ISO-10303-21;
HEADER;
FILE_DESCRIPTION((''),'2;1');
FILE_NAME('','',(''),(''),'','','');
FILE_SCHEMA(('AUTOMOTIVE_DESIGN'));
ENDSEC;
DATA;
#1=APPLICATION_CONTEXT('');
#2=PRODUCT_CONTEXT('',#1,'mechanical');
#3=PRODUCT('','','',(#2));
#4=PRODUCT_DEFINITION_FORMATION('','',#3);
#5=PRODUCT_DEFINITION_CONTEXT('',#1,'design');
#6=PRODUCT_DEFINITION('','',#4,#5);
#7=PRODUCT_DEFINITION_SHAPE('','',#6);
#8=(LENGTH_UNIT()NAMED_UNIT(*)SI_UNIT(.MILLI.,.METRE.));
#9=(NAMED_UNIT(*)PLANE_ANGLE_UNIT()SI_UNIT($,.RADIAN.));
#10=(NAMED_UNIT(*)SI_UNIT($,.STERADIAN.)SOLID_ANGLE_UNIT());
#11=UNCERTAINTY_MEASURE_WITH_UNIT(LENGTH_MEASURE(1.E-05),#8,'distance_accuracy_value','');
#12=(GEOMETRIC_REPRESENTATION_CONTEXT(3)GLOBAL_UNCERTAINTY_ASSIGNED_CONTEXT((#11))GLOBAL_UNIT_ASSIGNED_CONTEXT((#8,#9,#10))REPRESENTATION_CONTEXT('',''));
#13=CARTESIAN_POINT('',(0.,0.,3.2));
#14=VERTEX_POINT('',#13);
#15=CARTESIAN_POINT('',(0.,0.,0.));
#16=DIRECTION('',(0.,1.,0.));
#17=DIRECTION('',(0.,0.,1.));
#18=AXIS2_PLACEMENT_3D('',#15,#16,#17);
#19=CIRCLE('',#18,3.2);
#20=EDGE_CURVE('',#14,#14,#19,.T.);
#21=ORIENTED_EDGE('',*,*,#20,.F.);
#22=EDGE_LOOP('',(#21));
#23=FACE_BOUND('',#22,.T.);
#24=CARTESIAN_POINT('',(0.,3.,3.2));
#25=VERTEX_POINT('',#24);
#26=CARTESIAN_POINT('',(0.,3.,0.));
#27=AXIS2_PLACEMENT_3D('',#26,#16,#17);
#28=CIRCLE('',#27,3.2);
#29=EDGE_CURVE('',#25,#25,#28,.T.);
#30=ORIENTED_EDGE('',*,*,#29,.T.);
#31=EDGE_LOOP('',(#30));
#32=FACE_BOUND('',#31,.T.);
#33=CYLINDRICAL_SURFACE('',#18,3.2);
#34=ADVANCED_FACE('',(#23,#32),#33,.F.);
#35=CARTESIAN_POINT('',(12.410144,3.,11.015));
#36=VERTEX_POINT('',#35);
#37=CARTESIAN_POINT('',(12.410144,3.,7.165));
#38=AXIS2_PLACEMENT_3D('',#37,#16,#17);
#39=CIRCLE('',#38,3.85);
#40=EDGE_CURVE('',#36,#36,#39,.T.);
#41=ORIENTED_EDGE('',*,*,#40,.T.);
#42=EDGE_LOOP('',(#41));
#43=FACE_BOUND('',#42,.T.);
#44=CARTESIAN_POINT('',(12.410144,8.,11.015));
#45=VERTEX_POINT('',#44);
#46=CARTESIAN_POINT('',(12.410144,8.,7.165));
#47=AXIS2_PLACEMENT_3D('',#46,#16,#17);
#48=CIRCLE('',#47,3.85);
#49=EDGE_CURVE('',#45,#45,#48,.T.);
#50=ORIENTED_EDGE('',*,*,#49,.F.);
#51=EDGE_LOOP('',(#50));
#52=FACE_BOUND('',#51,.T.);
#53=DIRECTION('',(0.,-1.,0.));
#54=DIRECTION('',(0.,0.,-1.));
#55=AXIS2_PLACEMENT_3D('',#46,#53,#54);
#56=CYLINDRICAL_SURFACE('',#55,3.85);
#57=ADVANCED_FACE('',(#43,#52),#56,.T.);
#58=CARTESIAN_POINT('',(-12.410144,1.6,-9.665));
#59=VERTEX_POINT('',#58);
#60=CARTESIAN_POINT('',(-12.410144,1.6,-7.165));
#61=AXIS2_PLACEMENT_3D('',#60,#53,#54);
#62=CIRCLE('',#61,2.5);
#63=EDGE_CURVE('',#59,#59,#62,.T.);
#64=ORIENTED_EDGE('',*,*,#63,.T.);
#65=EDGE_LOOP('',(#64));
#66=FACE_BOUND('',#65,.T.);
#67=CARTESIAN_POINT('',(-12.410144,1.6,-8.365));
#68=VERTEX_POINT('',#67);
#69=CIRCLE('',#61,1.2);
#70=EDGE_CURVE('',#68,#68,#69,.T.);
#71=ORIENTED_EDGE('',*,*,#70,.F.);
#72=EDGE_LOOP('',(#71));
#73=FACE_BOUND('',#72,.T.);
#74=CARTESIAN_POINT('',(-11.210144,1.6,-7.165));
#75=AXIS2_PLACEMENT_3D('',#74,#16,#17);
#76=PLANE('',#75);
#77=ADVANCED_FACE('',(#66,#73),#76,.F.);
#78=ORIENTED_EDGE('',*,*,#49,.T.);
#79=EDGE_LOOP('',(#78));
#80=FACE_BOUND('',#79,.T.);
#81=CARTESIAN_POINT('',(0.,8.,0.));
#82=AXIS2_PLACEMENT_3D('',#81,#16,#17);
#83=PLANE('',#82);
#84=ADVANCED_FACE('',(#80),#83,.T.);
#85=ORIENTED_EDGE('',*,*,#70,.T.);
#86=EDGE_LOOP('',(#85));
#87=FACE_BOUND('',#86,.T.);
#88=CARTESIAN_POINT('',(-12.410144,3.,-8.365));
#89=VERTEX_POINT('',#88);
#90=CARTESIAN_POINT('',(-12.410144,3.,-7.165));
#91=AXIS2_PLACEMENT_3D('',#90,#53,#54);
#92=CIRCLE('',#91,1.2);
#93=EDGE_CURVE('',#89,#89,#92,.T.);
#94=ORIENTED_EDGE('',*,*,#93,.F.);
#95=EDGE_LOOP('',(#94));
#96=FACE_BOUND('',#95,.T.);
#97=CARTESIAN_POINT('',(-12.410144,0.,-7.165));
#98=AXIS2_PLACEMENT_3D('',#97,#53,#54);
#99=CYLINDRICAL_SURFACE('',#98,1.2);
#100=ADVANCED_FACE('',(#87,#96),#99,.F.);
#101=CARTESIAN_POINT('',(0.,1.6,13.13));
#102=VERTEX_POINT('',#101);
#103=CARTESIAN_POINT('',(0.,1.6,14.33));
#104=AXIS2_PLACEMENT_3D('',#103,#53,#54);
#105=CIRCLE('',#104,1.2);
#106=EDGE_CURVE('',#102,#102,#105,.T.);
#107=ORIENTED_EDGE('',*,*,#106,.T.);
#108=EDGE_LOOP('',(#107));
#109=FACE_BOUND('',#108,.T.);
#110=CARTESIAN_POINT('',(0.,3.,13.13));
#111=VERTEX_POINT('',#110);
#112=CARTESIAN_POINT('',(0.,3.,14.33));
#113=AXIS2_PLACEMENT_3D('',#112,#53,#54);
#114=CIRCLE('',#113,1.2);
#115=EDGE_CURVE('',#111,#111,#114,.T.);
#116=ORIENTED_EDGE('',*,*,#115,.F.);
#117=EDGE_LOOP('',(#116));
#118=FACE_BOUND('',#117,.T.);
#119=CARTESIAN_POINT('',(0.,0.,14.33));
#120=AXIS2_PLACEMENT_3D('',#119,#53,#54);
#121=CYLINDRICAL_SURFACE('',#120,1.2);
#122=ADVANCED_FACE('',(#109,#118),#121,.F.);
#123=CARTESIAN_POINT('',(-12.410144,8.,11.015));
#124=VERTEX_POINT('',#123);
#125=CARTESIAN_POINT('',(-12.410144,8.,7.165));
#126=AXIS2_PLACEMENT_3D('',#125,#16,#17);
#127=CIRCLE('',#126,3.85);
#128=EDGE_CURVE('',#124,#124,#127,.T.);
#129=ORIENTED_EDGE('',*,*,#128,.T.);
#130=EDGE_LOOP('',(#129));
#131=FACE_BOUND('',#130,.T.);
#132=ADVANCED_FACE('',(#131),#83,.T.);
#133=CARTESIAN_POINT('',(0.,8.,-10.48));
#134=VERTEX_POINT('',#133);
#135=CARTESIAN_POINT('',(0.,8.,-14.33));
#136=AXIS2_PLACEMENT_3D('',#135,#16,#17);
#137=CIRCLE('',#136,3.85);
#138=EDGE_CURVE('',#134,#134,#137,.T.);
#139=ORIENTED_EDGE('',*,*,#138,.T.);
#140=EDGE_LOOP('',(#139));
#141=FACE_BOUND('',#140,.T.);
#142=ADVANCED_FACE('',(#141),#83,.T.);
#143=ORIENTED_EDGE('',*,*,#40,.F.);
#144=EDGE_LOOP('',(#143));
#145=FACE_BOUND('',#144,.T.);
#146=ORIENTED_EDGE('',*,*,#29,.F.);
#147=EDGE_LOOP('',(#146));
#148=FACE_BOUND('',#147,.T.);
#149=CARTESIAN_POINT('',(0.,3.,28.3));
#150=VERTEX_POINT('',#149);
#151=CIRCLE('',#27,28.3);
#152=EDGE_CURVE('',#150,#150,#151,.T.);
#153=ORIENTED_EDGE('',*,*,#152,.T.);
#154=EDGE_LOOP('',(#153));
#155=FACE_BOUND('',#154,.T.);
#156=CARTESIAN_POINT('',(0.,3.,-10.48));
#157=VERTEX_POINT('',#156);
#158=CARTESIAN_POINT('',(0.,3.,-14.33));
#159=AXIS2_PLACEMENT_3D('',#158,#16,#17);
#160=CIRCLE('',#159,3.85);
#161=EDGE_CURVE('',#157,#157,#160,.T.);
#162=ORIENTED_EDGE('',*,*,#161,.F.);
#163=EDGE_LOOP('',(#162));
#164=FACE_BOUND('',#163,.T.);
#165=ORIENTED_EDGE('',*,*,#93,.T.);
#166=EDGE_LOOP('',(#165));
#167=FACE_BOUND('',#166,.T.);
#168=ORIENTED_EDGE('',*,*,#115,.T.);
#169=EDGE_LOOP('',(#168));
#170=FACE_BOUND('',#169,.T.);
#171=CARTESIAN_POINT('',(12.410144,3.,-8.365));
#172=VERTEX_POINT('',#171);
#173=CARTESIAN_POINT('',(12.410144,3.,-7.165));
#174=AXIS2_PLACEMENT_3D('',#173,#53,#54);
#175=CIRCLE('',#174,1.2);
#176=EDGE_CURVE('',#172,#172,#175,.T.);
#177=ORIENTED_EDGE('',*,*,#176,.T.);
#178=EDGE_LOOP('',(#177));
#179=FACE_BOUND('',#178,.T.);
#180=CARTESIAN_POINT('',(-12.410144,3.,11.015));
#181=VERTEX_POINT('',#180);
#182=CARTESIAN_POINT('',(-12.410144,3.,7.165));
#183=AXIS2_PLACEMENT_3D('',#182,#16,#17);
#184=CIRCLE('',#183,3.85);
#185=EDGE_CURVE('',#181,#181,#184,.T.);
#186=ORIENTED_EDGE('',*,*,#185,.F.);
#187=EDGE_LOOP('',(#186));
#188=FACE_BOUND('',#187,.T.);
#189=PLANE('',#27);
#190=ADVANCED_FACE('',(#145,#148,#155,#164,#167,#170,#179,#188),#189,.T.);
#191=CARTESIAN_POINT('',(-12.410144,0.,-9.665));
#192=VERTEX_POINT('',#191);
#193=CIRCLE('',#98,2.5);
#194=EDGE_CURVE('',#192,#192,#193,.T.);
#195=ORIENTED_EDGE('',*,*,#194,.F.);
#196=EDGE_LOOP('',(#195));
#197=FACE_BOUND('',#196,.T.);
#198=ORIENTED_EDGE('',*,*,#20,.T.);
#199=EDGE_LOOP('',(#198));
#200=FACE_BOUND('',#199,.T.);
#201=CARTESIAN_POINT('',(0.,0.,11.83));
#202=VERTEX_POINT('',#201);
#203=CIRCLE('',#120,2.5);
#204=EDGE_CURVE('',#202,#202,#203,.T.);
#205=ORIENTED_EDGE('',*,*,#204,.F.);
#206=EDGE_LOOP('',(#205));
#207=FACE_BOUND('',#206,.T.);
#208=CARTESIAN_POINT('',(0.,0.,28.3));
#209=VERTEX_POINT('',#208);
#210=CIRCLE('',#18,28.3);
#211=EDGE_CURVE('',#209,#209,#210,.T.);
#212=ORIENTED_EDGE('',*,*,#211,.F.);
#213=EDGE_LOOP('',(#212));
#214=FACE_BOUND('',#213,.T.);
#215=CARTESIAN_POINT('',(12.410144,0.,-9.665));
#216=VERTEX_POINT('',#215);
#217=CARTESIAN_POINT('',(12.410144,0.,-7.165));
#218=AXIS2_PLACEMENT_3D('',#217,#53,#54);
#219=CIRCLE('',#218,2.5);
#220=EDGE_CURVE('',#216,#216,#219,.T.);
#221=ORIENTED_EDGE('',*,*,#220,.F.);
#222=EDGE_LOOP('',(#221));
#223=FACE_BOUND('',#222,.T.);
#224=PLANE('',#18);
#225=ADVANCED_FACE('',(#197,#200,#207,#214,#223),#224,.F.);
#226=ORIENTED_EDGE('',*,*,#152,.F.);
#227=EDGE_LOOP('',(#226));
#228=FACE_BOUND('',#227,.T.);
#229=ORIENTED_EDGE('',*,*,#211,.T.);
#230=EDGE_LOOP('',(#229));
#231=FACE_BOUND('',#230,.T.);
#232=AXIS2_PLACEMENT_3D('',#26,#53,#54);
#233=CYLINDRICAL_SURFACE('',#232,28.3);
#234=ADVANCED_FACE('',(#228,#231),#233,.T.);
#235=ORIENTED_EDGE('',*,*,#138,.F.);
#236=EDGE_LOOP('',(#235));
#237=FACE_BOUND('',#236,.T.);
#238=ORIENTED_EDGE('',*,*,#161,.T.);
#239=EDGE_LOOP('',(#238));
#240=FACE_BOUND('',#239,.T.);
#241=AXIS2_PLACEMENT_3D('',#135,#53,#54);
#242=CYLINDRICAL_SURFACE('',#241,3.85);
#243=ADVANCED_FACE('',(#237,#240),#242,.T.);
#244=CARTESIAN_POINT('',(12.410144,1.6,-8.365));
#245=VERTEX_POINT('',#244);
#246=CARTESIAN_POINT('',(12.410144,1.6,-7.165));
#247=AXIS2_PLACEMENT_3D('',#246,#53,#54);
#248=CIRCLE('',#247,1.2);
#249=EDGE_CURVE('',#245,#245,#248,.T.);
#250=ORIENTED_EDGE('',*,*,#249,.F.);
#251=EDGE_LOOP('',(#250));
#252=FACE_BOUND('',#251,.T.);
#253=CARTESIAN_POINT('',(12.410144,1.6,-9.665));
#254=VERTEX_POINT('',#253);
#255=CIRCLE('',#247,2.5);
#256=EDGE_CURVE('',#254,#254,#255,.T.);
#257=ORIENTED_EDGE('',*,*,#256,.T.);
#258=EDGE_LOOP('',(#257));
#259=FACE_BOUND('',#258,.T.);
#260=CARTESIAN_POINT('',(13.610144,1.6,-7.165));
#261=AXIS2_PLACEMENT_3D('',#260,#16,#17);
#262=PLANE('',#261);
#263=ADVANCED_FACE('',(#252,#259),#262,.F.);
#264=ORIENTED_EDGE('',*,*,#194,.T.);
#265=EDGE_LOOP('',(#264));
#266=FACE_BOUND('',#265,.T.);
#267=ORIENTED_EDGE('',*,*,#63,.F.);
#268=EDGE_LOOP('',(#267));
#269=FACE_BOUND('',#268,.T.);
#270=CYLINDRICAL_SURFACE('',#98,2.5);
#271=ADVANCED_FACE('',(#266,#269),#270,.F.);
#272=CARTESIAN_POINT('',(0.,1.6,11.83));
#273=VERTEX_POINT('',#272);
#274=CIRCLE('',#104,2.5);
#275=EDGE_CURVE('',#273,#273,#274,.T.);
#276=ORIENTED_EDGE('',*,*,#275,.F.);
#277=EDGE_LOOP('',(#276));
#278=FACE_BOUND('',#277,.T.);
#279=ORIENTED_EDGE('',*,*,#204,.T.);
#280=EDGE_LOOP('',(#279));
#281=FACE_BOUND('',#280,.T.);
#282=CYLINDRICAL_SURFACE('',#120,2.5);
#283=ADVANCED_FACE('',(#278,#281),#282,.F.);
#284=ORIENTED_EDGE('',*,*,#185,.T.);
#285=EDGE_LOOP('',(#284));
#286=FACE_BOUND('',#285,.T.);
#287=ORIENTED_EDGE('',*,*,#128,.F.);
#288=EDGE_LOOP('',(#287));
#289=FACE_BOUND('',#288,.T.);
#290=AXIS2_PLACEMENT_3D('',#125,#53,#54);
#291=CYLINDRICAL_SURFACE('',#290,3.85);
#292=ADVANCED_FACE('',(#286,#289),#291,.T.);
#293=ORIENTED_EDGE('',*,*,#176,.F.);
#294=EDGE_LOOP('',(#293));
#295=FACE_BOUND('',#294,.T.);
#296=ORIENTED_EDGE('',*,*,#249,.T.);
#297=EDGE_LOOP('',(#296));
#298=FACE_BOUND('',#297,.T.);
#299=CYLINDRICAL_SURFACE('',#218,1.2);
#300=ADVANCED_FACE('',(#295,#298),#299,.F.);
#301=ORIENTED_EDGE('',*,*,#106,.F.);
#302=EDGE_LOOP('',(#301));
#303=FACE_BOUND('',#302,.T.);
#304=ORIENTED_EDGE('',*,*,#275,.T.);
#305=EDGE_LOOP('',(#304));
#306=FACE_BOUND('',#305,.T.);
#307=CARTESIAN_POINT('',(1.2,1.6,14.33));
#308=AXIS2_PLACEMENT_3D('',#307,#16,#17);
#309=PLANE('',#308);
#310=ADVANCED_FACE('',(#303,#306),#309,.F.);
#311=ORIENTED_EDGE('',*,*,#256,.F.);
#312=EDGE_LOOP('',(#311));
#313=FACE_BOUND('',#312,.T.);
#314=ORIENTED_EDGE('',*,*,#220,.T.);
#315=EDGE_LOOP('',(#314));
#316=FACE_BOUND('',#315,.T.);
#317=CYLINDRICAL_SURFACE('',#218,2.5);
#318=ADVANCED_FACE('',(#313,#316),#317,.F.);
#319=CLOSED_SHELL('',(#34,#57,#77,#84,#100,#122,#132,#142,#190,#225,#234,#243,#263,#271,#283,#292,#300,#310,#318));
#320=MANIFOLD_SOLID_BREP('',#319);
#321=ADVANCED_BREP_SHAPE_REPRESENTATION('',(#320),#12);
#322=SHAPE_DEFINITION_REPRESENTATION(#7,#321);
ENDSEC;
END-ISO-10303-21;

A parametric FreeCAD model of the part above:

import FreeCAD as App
import Part
import Sketcher
Q = App.Units.Quantity

doc = App.newDocument("Part")
params = doc.addObject("Spreadsheet::Sheet", "Params")
for row, (alias, value) in enumerate([
    ("sketch1_diameter", "7.7 mm"),
    ("pad1_length", "8 mm"),
    ("sketch2_diameter", "7.7 mm"),
    ("pad2_length", "8 mm"),
    ("sketch3_diameter", "7.7 mm"),
    ("pad3_length", "8 mm"),
    ("sketch4_diameter", "1 mm"),
    ("sketch4_diameter2", "56.6 mm"),
    ("pad4_length", "3 mm"),
    ("sketch5_diameter", "6.4 mm"),
    ("sketch6_diameter", "2.4 mm"),
    ("hole_diameter", "2.4 mm"),
    ("hole_depth", "3 mm"),
    ("hole_cbore_diameter", "5 mm"),
    ("hole_cbore_depth", "1.6 mm"),
], start=1):
    params.set(f"A{row}", alias)
    params.set(f"B{row}", "=" + value)
    params.setAlias(f"B{row}", alias)

body = doc.addObject("PartDesign::Body", "Body")

# Sketch on XZ plane
sketch1 = body.newObject("Sketcher::SketchObject", "Sketch")
sketch1.AttachmentSupport = (doc.getObject("XZ_Plane"), [""])
sketch1.MapMode = "FlatFace"
sketch1.addGeometry(Part.Circle(App.Vector(0, -14.3, 0), App.Vector(0, 0, 1), 3.9), False)
sketch1.addConstraint(Sketcher.Constraint("PointOnObject", 0, 3, -2))
sketch1.addConstraint(Sketcher.Constraint("Diameter", 0, Q("7.7 mm")))
sketch1.addConstraint(Sketcher.Constraint("DistanceY", 0, 3, -1, 1, Q("14.33 mm")))
sketch1.setExpression("Constraints[1]", "Params.sketch1_diameter")
pad1 = body.newObject("PartDesign::Pad", "Pad")
pad1.Profile = sketch1
pad1.setExpression("Length", "Params.pad1_length")
pad1.Reversed = True
body2 = doc.addObject("PartDesign::Body", "Body001")

# Sketch on XZ plane
sketch2 = body2.newObject("Sketcher::SketchObject", "Sketch001")
sketch2.AttachmentSupport = (doc.getObject("XZ_Plane001"), [""])
sketch2.MapMode = "FlatFace"
sketch2.addGeometry(Part.Circle(App.Vector(12.4, 7.2, 0), App.Vector(0, 0, 1), 3.9), False)
sketch2.addConstraint(Sketcher.Constraint("Diameter", 0, Q("7.7 mm")))
sketch2.addConstraint(Sketcher.Constraint("DistanceY", -1, 1, 0, 3, Q("7.165 mm")))
sketch2.addConstraint(Sketcher.Constraint("DistanceX", -1, 1, 0, 3, Q("12.410144 mm")))
sketch2.setExpression("Constraints[0]", "Params.sketch2_diameter")
pad2 = body2.newObject("PartDesign::Pad", "Pad001")
pad2.Profile = sketch2
pad2.setExpression("Length", "Params.pad2_length")
pad2.Reversed = True
body3 = doc.addObject("PartDesign::Body", "Body002")

# Sketch on XZ plane
sketch3 = body3.newObject("Sketcher::SketchObject", "Sketch002")
sketch3.AttachmentSupport = (doc.getObject("XZ_Plane002"), [""])
sketch3.MapMode = "FlatFace"
sketch3.addGeometry(Part.Circle(App.Vector(-12.4, 7.2, 0), App.Vector(0, 0, 1), 3.9), False)
sketch3.addConstraint(Sketcher.Constraint("Diameter", 0, Q("7.7 mm")))
sketch3.addConstraint(Sketcher.Constraint("DistanceY", -1, 1, 0, 3, Q("7.165 mm")))
sketch3.addConstraint(Sketcher.Constraint("DistanceX", 0, 3, -1, 1, Q("12.410144 mm")))
sketch3.setExpression("Constraints[0]", "Params.sketch3_diameter")
pad3 = body3.newObject("PartDesign::Pad", "Pad002")
pad3.Profile = sketch3
pad3.setExpression("Length", "Params.pad3_length")
pad3.Reversed = True
body.AllowCompound = True
doc.recompute()

boolean = body.newObject("PartDesign::Boolean", "Boolean")
boolean.Type = "Fuse"
boolean.addObjects([body2])
doc.recompute()

boolean2 = body.newObject("PartDesign::Boolean", "Boolean001")
boolean2.Type = "Fuse"
boolean2.addObjects([body3])

# Sketch on XZ plane
sketch4 = body.newObject("Sketcher::SketchObject", "Sketch003")
sketch4.AttachmentSupport = (doc.getObject("XZ_Plane"), [""])
sketch4.MapMode = "FlatFace"
sketch4.addGeometry(Part.Circle(App.Vector(0, 0, 0), App.Vector(0, 0, 1), 28.3), False)
sketch4.addGeometry(Part.Circle(App.Vector(-12.4, -7.2, 0), App.Vector(0, 0, 1), 0.5), False)
sketch4.addGeometry(Part.Circle(App.Vector(12.4, -7.2, 0), App.Vector(0, 0, 1), 0.5), False)
sketch4.addGeometry(Part.Circle(App.Vector(0, 14.3, 0), App.Vector(0, 0, 1), 0.5), False)
sketch4.addConstraint(Sketcher.Constraint("Coincident", 0, 3, -1, 1))
sketch4.addConstraint(Sketcher.Constraint("Equal", 1, 2))
sketch4.addConstraint(Sketcher.Constraint("Equal", 2, 3))
sketch4.addConstraint(Sketcher.Constraint("Symmetric", 1, 3, 2, 3, -2))
sketch4.addConstraint(Sketcher.Constraint("PointOnObject", 3, 3, -2))
sketch4.addConstraint(Sketcher.Constraint("Diameter", 1, Q("1 mm")))
sketch4.addConstraint(Sketcher.Constraint("Diameter", 0, Q("56.6 mm")))
sketch4.addConstraint(Sketcher.Constraint("DistanceY", -1, 1, 3, 3, Q("14.33 mm")))
sketch4.addConstraint(Sketcher.Constraint("DistanceY", 1, 3, -1, 1, Q("7.165 mm")))
sketch4.addConstraint(Sketcher.Constraint("DistanceX", 1, 3, 2, 3, Q("24.820288 mm")))
sketch4.setExpression("Constraints[5]", "Params.sketch4_diameter")
sketch4.setExpression("Constraints[6]", "Params.sketch4_diameter2")
pad4 = body.newObject("PartDesign::Pad", "Pad003")
pad4.Profile = sketch4
pad4.setExpression("Length", "Params.pad4_length")
pad4.Reversed = True

# Sketch on XZ plane
sketch5 = body.newObject("Sketcher::SketchObject", "Sketch004")
sketch5.AttachmentSupport = (doc.getObject("XZ_Plane"), [""])
sketch5.MapMode = "FlatFace"
sketch5.AttachmentOffset = App.Placement(App.Vector(0, 0, -3), App.Rotation())
sketch5.addGeometry(Part.Circle(App.Vector(0, 0, 0), App.Vector(0, 0, 1), 3.2), False)
sketch5.addConstraint(Sketcher.Constraint("Coincident", 0, 3, -1, 1))
sketch5.addConstraint(Sketcher.Constraint("Diameter", 0, Q("6.4 mm")))
sketch5.setExpression("Constraints[1]", "Params.sketch5_diameter")
pocket1 = body.newObject("PartDesign::Pocket", "Pocket")
pocket1.Profile = sketch5
pocket1.Type = "ThroughAll"
pocket1.Reversed = True

# Sketch on XZ plane
sketch6 = body.newObject("Sketcher::SketchObject", "Sketch005")
sketch6.AttachmentSupport = (doc.getObject("XZ_Plane"), [""])
sketch6.MapMode = "FlatFace"
sketch6.addGeometry(Part.Circle(App.Vector(0, 14.3, 0), App.Vector(0, 0, 1), 1.2), False)
sketch6.addGeometry(Part.Circle(App.Vector(-12.4, -7.2, 0), App.Vector(0, 0, 1), 1.2), False)
sketch6.addGeometry(Part.Circle(App.Vector(12.4, -7.2, 0), App.Vector(0, 0, 1), 1.2), False)
sketch6.addConstraint(Sketcher.Constraint("Equal", 0, 1))
sketch6.addConstraint(Sketcher.Constraint("Equal", 1, 2))
sketch6.addConstraint(Sketcher.Constraint("Symmetric", 1, 3, 2, 3, -2))
sketch6.addConstraint(Sketcher.Constraint("PointOnObject", 0, 3, -2))
sketch6.addConstraint(Sketcher.Constraint("Diameter", 0, Q("2.4 mm")))
sketch6.addConstraint(Sketcher.Constraint("DistanceY", -1, 1, 0, 3, Q("14.33 mm")))
sketch6.addConstraint(Sketcher.Constraint("DistanceY", 1, 3, -1, 1, Q("7.165 mm")))
sketch6.addConstraint(Sketcher.Constraint("DistanceX", 1, 3, 2, 3, Q("24.820288 mm")))
sketch6.setExpression("Constraints[4]", "Params.sketch6_diameter")
doc.recompute()
hole = body.newObject("PartDesign::Hole", "Hole")
hole.Profile = sketch6
hole.ThreadType = "None"
hole.setExpression("Diameter", "Params.hole_diameter")
hole.DepthType = "Dimension"
hole.setExpression("Depth", "Params.hole_depth")
hole.DrillPoint = "Angled"
hole.DrillPointAngle = 118
hole.HoleCutType = "Counterbore"
hole.setExpression("HoleCutDiameter", "Params.hole_cbore_diameter")
hole.setExpression("HoleCutDepth", "Params.hole_cbore_depth")

doc.recompute()
